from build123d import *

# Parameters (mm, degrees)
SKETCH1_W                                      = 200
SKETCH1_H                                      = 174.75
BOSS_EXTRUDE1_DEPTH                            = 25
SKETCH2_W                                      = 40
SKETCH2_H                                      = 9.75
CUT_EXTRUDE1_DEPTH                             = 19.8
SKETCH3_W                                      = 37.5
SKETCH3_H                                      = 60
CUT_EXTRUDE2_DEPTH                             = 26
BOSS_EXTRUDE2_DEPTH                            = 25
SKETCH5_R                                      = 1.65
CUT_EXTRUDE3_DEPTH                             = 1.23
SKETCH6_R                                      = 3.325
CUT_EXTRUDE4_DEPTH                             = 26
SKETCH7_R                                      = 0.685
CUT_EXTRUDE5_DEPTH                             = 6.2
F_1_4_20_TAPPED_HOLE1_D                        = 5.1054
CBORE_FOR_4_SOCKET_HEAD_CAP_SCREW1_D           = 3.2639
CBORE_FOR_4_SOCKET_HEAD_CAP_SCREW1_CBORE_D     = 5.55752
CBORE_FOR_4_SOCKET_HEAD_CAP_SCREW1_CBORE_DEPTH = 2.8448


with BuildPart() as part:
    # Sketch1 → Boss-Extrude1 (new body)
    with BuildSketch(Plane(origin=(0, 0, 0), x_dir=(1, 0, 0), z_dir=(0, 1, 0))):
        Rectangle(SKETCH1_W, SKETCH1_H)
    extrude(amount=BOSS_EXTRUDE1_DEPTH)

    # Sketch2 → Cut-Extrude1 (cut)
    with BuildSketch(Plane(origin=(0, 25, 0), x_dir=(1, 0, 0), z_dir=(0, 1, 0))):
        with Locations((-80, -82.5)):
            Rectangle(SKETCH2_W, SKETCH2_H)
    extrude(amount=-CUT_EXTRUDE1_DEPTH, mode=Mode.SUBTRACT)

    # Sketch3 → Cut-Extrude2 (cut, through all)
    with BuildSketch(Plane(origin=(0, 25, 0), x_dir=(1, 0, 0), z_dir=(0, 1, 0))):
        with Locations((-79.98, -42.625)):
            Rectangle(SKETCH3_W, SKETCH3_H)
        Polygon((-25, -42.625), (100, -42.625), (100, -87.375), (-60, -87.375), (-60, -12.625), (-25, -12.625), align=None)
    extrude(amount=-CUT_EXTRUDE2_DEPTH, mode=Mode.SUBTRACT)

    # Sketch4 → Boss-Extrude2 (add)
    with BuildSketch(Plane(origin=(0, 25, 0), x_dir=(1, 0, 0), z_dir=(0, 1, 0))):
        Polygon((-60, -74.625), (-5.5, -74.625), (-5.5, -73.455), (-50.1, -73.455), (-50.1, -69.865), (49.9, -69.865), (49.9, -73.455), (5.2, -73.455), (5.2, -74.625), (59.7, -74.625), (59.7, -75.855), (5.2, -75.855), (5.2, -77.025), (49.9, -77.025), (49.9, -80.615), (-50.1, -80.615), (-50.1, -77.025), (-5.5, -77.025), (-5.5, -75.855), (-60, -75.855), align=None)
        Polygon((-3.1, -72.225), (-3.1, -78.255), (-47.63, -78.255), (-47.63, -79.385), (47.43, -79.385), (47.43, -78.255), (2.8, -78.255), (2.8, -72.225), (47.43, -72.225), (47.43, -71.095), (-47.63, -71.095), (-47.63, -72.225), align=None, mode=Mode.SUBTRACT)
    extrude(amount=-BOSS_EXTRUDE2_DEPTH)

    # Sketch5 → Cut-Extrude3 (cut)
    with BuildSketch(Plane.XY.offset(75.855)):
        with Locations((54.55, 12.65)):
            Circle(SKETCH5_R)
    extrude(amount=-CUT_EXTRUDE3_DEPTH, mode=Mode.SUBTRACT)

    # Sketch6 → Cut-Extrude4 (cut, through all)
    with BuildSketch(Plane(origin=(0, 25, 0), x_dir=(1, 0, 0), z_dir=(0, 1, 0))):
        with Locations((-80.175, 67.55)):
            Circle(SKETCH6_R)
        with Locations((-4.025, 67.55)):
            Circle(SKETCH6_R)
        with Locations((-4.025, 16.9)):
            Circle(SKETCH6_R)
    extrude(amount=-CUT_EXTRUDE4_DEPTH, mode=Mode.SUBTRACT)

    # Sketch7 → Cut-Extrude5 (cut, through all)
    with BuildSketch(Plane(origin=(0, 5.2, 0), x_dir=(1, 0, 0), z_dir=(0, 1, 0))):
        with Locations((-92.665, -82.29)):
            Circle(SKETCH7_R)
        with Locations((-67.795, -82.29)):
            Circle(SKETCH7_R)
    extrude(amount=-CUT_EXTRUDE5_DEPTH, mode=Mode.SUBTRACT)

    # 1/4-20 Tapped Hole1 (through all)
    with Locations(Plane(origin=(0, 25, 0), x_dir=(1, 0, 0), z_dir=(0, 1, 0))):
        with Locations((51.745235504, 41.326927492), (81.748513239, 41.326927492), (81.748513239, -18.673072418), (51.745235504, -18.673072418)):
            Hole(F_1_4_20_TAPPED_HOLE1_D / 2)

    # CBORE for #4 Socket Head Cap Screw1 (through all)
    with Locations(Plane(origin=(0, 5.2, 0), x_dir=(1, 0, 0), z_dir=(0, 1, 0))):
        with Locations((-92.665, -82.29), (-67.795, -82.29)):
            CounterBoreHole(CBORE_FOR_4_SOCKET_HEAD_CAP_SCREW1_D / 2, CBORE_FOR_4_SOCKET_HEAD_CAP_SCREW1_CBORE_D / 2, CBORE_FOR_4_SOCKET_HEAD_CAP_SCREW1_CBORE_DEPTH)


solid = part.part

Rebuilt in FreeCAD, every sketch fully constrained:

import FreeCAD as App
import Part
import Sketcher
Q = App.Units.Quantity

doc = App.newDocument("Part")
params = doc.addObject("Spreadsheet::Sheet", "Params")
for row, (alias, value) in enumerate([
    ("sketch1_width", "200 mm"),
    ("sketch1_height", "174.75 mm"),
    ("pad1_length", "25 mm"),
    ("sketch2_width", "40 mm"),
    ("sketch2_height", "9.75 mm"),
    ("pocket1_length", "19.8 mm"),
    ("sketch3_width", "125 mm"),
    ("sketch3_width2", "35 mm"),
    ("sketch3_height", "60 mm"),
    ("sketch3_height2", "30 mm"),
    ("sketch3_width3", "37.5 mm"),
    ("sketch4_width", "100 mm"),
    ("sketch4_width2", "54.5 mm"),
    ("sketch4_width3", "44.6 mm"),
    ("sketch4_width4", "44.7 mm"),
    ("sketch4_width5", "44.53 mm"),
    ("pad2_length", "25 mm"),
    ("sketch5_diameter", "3.3 mm"),
    ("pocket3_length", "1.23 mm"),
    ("sketch6_diameter", "6.65 mm"),
    ("sketch7_diameter", "1.37 mm"),
    ("hole_diameter", "5.1054 mm"),
    ("hole2_diameter", "3.2639 mm"),
    ("hole2_cbore_diameter", "5.55752 mm"),
    ("hole2_cbore_depth", "2.8448 mm"),
], start=1):
    params.set(f"A{row}", alias)
    params.set(f"B{row}", "=" + value)
    params.setAlias(f"B{row}", alias)

body = doc.addObject("PartDesign::Body", "Body")

sketch1 = body.newObject("Sketcher::SketchObject", "Sketch")
sketch1.AttachmentSupport = (doc.getObject("XZ_Plane"), [""])
sketch1.MapMode = "FlatFace"
sketch1.addGeometry([
    Part.LineSegment(App.Vector(-100, -87.375, 0), App.Vector(-100, 87.375, 0)),
    Part.LineSegment(App.Vector(-100, 87.375, 0), App.Vector(100, 87.375, 0)),
    Part.LineSegment(App.Vector(100, 87.375, 0), App.Vector(100, -87.375, 0)),
    Part.LineSegment(App.Vector(100, -87.375, 0), App.Vector(-100, -87.375, 0)),
], False)
sketch1.addConstraint([
    Sketcher.Constraint("Coincident", 0, 2, 1, 1),
    Sketcher.Constraint("Coincident", 1, 2, 2, 1),
    Sketcher.Constraint("Coincident", 2, 2, 3, 1),
    Sketcher.Constraint("Coincident", 3, 2, 0, 1),
    Sketcher.Constraint("Vertical", 0),
    Sketcher.Constraint("Horizontal", 1),
    Sketcher.Constraint("Vertical", 2),
    Sketcher.Constraint("Horizontal", 3),
    Sketcher.Constraint("Symmetric", 0, 2, 2, 2, -1, 1),
    Sketcher.Constraint("DistanceX", 1, 1, 1, 2, Q("200 mm")),
    Sketcher.Constraint("DistanceY", 0, 1, 0, 2, Q("174.75 mm")),
])
sketch1.setExpression("Constraints[9]", "Params.sketch1_width")
sketch1.setExpression("Constraints[10]", "Params.sketch1_height")
pad1 = body.newObject("PartDesign::Pad", "Pad")
pad1.Profile = sketch1
pad1.setExpression("Length", "Params.pad1_length")
pad1.Reversed = True

sketch2 = body.newObject("Sketcher::SketchObject", "Sketch001")
sketch2.AttachmentSupport = (doc.getObject("XZ_Plane"), [""])
sketch2.MapMode = "FlatFace"
sketch2.AttachmentOffset = App.Placement(App.Vector(0, 0, -25), App.Rotation())
sketch2.addGeometry([
    Part.LineSegment(App.Vector(-100, 77.625, 0), App.Vector(-100, 87.375, 0)),
    Part.LineSegment(App.Vector(-100, 87.375, 0), App.Vector(-60, 87.375, 0)),
    Part.LineSegment(App.Vector(-60, 87.375, 0), App.Vector(-60, 77.625, 0)),
    Part.LineSegment(App.Vector(-60, 77.625, 0), App.Vector(-100, 77.625, 0)),
], False)
sketch2.addConstraint([
    Sketcher.Constraint("Coincident", 0, 2, 1, 1),
    Sketcher.Constraint("Coincident", 1, 2, 2, 1),
    Sketcher.Constraint("Coincident", 2, 2, 3, 1),
    Sketcher.Constraint("Coincident", 3, 2, 0, 1),
    Sketcher.Constraint("Vertical", 0),
    Sketcher.Constraint("Horizontal", 1),
    Sketcher.Constraint("Vertical", 2),
    Sketcher.Constraint("Horizontal", 3),
    Sketcher.Constraint("DistanceX", 1, 1, 1, 2, Q("40 mm")),
    Sketcher.Constraint("DistanceX", 0, 2, -1, 1, Q("100 mm")),
    Sketcher.Constraint("DistanceY", 0, 1, 0, 2, Q("9.75 mm")),
    Sketcher.Constraint("DistanceY", -1, 1, 0, 2, Q("87.375 mm")),
])
sketch2.setExpression("Constraints[8]", "Params.sketch2_width")
sketch2.setExpression("Constraints[10]", "Params.sketch2_height")
pocket1 = body.newObject("PartDesign::Pocket", "Pocket")
pocket1.Profile = sketch2
pocket1.setExpression("Length", "Params.pocket1_length")
pocket1.Reversed = True

sketch3 = body.newObject("Sketcher::SketchObject", "Sketch002")
sketch3.AttachmentSupport = (doc.getObject("XZ_Plane"), [""])
sketch3.MapMode = "FlatFace"
sketch3.AttachmentOffset = App.Placement(App.Vector(0, 0, -25), App.Rotation())
sketch3.addGeometry([
    Part.LineSegment(App.Vector(-98.73, 12.625, 0), App.Vector(-98.73, 72.625, 0)),
    Part.LineSegment(App.Vector(-98.73, 72.625, 0), App.Vector(-61.23, 72.625, 0)),
    Part.LineSegment(App.Vector(-61.23, 72.625, 0), App.Vector(-61.23, 12.625, 0)),
    Part.LineSegment(App.Vector(-61.23, 12.625, 0), App.Vector(-98.73, 12.625, 0)),
    Part.LineSegment(App.Vector(100, 42.625, 0), App.Vector(-25, 42.625, 0)),
    Part.LineSegment(App.Vector(-25, 42.625, 0), App.Vector(-25, 12.625, 0)),
    Part.LineSegment(App.Vector(-25, 12.625, 0), App.Vector(-60, 12.625, 0)),
    Part.LineSegment(App.Vector(-60, 12.625, 0), App.Vector(-60, 87.375, 0)),
    Part.LineSegment(App.Vector(-60, 87.375, 0), App.Vector(100, 87.375, 0)),
    Part.LineSegment(App.Vector(100, 87.375, 0), App.Vector(100, 42.625, 0)),
], False)
sketch3.addConstraint([
    Sketcher.Constraint("Coincident", 0, 2, 1, 1),
    Sketcher.Constraint("Coincident", 1, 2, 2, 1),
    Sketcher.Constraint("Coincident", 2, 2, 3, 1),
    Sketcher.Constraint("Coincident", 3, 2, 0, 1),
    Sketcher.Constraint("Coincident", 4, 2, 5, 1),
    Sketcher.Constraint("Coincident", 5, 2, 6, 1),
    Sketcher.Constraint("Coincident", 6, 2, 7, 1),
    Sketcher.Constraint("Coincident", 7, 2, 8, 1),
    Sketcher.Constraint("Coincident", 8, 2, 9, 1),
    Sketcher.Constraint("Coincident", 9, 2, 4, 1),
    Sketcher.Constraint("Vertical", 0),
    Sketcher.Constraint("Horizontal", 1),
    Sketcher.Constraint("Vertical", 2),
    Sketcher.Constraint("Horizontal", 3),
    Sketcher.Constraint("Horizontal", 4),
    Sketcher.Constraint("Vertical", 5),
    Sketcher.Constraint("Horizontal", 6),
    Sketcher.Constraint("Vertical", 7),
    Sketcher.Constraint("Horizontal", 8),
    Sketcher.Constraint("Vertical", 9),
    Sketcher.Constraint("Horizontal", 3, 2, 5, 2),
    Sketcher.Constraint("DistanceX", 4, 2, 4, 1, Q("125 mm")),
    Sketcher.Constraint("DistanceX", 6, 2, 6, 1, Q("35 mm")),
    Sketcher.Constraint("DistanceY", 0, 1, 0, 2, Q("60 mm")),
    Sketcher.Constraint("DistanceY", 5, 2, 5, 1, Q("30 mm")),
    Sketcher.Constraint("DistanceX", 1, 1, 1, 2, Q("37.5 mm")),
    Sketcher.Constraint("DistanceX", 4, 2, -1, 1, Q("25 mm")),
    Sketcher.Constraint("DistanceY", 7, 1, 7, 2, Q("74.75 mm")),
    Sketcher.Constraint("DistanceX", 0, 2, -1, 1, Q("98.73 mm")),
    Sketcher.Constraint("DistanceY", -1, 1, 0, 2, Q("72.625 mm")),
])
sketch3.setExpression("Constraints[21]", "Params.sketch3_width")
sketch3.setExpression("Constraints[22]", "Params.sketch3_width2")
sketch3.setExpression("Constraints[23]", "Params.sketch3_height")
sketch3.setExpression("Constraints[24]", "Params.sketch3_height2")
sketch3.setExpression("Constraints[25]", "Params.sketch3_width3")
pocket2 = body.newObject("PartDesign::Pocket", "Pocket001")
pocket2.Profile = sketch3
pocket2.Type = "ThroughAll"
pocket2.Reversed = True

sketch4 = body.newObject("Sketcher::SketchObject", "Sketch003")
sketch4.AttachmentSupport = (doc.getObject("XZ_Plane"), [""])
sketch4.MapMode = "FlatFace"
sketch4.AttachmentOffset = App.Placement(App.Vector(0, 0, -25), App.Rotation())
sketch4.addGeometry([
    Part.LineSegment(App.Vector(-5.5, 74.625, 0), App.Vector(-60, 74.625, 0)),
    Part.LineSegment(App.Vector(-60, 74.625, 0), App.Vector(-60, 75.855, 0)),
    Part.LineSegment(App.Vector(-60, 75.855, 0), App.Vector(-5.5, 75.855, 0)),
    Part.LineSegment(App.Vector(-5.5, 75.855, 0), App.Vector(-5.5, 77.025, 0)),
    Part.LineSegment(App.Vector(-5.5, 77.025, 0), App.Vector(-50.1, 77.025, 0)),
    Part.LineSegment(App.Vector(-50.1, 77.025, 0), App.Vector(-50.1, 80.615, 0)),
    Part.LineSegment(App.Vector(-50.1, 80.615, 0), App.Vector(49.9, 80.615, 0)),
    Part.LineSegment(App.Vector(49.9, 80.615, 0), App.Vector(49.9, 77.025, 0)),
    Part.LineSegment(App.Vector(49.9, 77.025, 0), App.Vector(5.2, 77.025, 0)),
    Part.LineSegment(App.Vector(5.2, 77.025, 0), App.Vector(5.2, 75.855, 0)),
    Part.LineSegment(App.Vector(5.2, 75.855, 0), App.Vector(59.7, 75.855, 0)),
    Part.LineSegment(App.Vector(59.7, 75.855, 0), App.Vector(59.7, 74.625, 0)),
    Part.LineSegment(App.Vector(59.7, 74.625, 0), App.Vector(5.2, 74.625, 0)),
    Part.LineSegment(App.Vector(5.2, 74.625, 0), App.Vector(5.2, 73.455, 0)),
    Part.LineSegment(App.Vector(5.2, 73.455, 0), App.Vector(49.9, 73.455, 0)),
    Part.LineSegment(App.Vector(49.9, 73.455, 0), App.Vector(49.9, 69.865, 0)),
    Part.LineSegment(App.Vector(49.9, 69.865, 0), App.Vector(-50.1, 69.865, 0)),
    Part.LineSegment(App.Vector(-50.1, 69.865, 0), App.Vector(-50.1, 73.455, 0)),
    Part.LineSegment(App.Vector(-50.1, 73.455, 0), App.Vector(-5.5, 73.455, 0)),
    Part.LineSegment(App.Vector(-5.5, 73.455, 0), App.Vector(-5.5, 74.625, 0)),
    Part.LineSegment(App.Vector(-3.1, 72.225, 0), App.Vector(-47.63, 72.225, 0)),
    Part.LineSegment(App.Vector(-47.63, 72.225, 0), App.Vector(-47.63, 71.095, 0)),
    Part.LineSegment(App.Vector(-47.63, 71.095, 0), App.Vector(47.43, 71.095, 0)),
    Part.LineSegment(App.Vector(47.43, 71.095, 0), App.Vector(47.43, 72.225, 0)),
    Part.LineSegment(App.Vector(47.43, 72.225, 0), App.Vector(2.8, 72.225, 0)),
    Part.LineSegment(App.Vector(2.8, 72.225, 0), App.Vector(2.8, 78.255, 0)),
    Part.LineSegment(App.Vector(2.8, 78.255, 0), App.Vector(47.43, 78.255, 0)),
    Part.LineSegment(App.Vector(47.43, 78.255, 0), App.Vector(47.43, 79.385, 0)),
    Part.LineSegment(App.Vector(47.43, 79.385, 0), App.Vector(-47.63, 79.385, 0)),
    Part.LineSegment(App.Vector(-47.63, 79.385, 0), App.Vector(-47.63, 78.255, 0)),
    Part.LineSegment(App.Vector(-47.63, 78.255, 0), App.Vector(-3.1, 78.255, 0)),
    Part.LineSegment(App.Vector(-3.1, 78.255, 0), App.Vector(-3.1, 72.225, 0)),
], False)
sketch4.addConstraint([
    Sketcher.Constraint("Coincident", 0, 2, 1, 1),
    Sketcher.Constraint("Coincident", 1, 2, 2, 1),
    Sketcher.Constraint("Coincident", 2, 2, 3, 1),
    Sketcher.Constraint("Coincident", 3, 2, 4, 1),
    Sketcher.Constraint("Coincident", 4, 2, 5, 1),
    Sketcher.Constraint("Coincident", 5, 2, 6, 1),
    Sketcher.Constraint("Coincident", 6, 2, 7, 1),
    Sketcher.Constraint("Coincident", 7, 2, 8, 1),
    Sketcher.Constraint("Coincident", 8, 2, 9, 1),
    Sketcher.Constraint("Coincident", 9, 2, 10, 1),
    Sketcher.Constraint("Coincident", 10, 2, 11, 1),
    Sketcher.Constraint("Coincident", 11, 2, 12, 1),
    Sketcher.Constraint("Coincident", 12, 2, 13, 1),
    Sketcher.Constraint("Coincident", 13, 2, 14, 1),
    Sketcher.Constraint("Coincident", 14, 2, 15, 1),
    Sketcher.Constraint("Coincident", 15, 2, 16, 1),
    Sketcher.Constraint("Coincident", 16, 2, 17, 1),
    Sketcher.Constraint("Coincident", 17, 2, 18, 1),
    Sketcher.Constraint("Coincident", 18, 2, 19, 1),
    Sketcher.Constraint("Coincident", 19, 2, 0, 1),
    Sketcher.Constraint("Coincident", 20, 2, 21, 1),
    Sketcher.Constraint("Coincident", 21, 2, 22, 1),
    Sketcher.Constraint("Coincident", 22, 2, 23, 1),
    Sketcher.Constraint("Coincident", 23, 2, 24, 1),
    Sketcher.Constraint("Coincident", 24, 2, 25, 1),
    Sketcher.Constraint("Coincident", 25, 2, 26, 1),
    Sketcher.Constraint("Coincident", 26, 2, 27, 1),
    Sketcher.Constraint("Coincident", 27, 2, 28, 1),
    Sketcher.Constraint("Coincident", 28, 2, 29, 1),
    Sketcher.Constraint("Coincident", 29, 2, 30, 1),
    Sketcher.Constraint("Coincident", 30, 2, 31, 1),
    Sketcher.Constraint("Coincident", 31, 2, 20, 1),
    Sketcher.Constraint("Horizontal", 0),
    Sketcher.Constraint("Vertical", 1),
    Sketcher.Constraint("Horizontal", 2),
    Sketcher.Constraint("Vertical", 3),
    Sketcher.Constraint("Horizontal", 4),
    Sketcher.Constraint("Vertical", 5),
    Sketcher.Constraint("Horizontal", 6),
    Sketcher.Constraint("Vertical", 7),
    Sketcher.Constraint("Horizontal", 8),
    Sketcher.Constraint("Vertical", 9),
    Sketcher.Constraint("Horizontal", 10),
    Sketcher.Constraint("Vertical", 11),
    Sketcher.Constraint("Horizontal", 12),
    Sketcher.Constraint("Vertical", 13),
    Sketcher.Constraint("Horizontal", 14),
    Sketcher.Constraint("Vertical", 15),
    Sketcher.Constraint("Horizontal", 16),
    Sketcher.Constraint("Vertical", 17),
    Sketcher.Constraint("Horizontal", 18),
    Sketcher.Constraint("Vertical", 19),
    Sketcher.Constraint("Horizontal", 20),
    Sketcher.Constraint("Vertical", 21),
    Sketcher.Constraint("Horizontal", 22),
    Sketcher.Constraint("Vertical", 23),
    Sketcher.Constraint("Horizontal", 24),
    Sketcher.Constraint("Vertical", 25),
    Sketcher.Constraint("Horizontal", 26),
    Sketcher.Constraint("Vertical", 27),
    Sketcher.Constraint("Horizontal", 28),
    Sketcher.Constraint("Vertical", 29),
    Sketcher.Constraint("Horizontal", 30),
    Sketcher.Constraint("Vertical", 31),
    Sketcher.Constraint("Horizontal", 4, 2, 7, 2),
    Sketcher.Constraint("Horizontal", 2, 2, 9, 2),
    Sketcher.Constraint("Horizontal", 0, 2, 11, 2),
    Sketcher.Constraint("Horizontal", 14, 2, 17, 2),
    Sketcher.Constraint("Horizontal", 20, 2, 23, 2),
    Sketcher.Constraint("Horizontal", 26, 2, 29, 2),
    Sketcher.Constraint("Vertical", 9, 2, 12, 2),
    Sketcher.Constraint("Vertical", 7, 2, 14, 2),
    Sketcher.Constraint("Vertical", 5, 2, 16, 2),
    Sketcher.Constraint("Vertical", 3, 2, 18, 2),
    Sketcher.Constraint("Vertical", 23, 2, 26, 2),
    Sketcher.Constraint("Vertical", 21, 2, 28, 2),
    Sketcher.Constraint("Equal", 2, 10),
    Sketcher.Constraint("Equal", 9, 13),
    Sketcher.Constraint("Equal", 7, 15),
    Sketcher.Constraint("Equal", 23, 27),
    Sketcher.Constraint("DistanceX", 6, 1, 6, 2, Q("100 mm")),
    Sketcher.Constraint("DistanceX", 0, 2, 0, 1, Q("54.5 mm")),
    Sketcher.Constraint("DistanceX", 4, 2, 4, 1, Q("44.6 mm")),
    Sketcher.Constraint("DistanceX", 8, 2, 8, 1, Q("44.7 mm")),
    Sketcher.Constraint("DistanceX", 0, 2, -1, 1, Q("60 mm")),
    Sketcher.Constraint("DistanceX", 20, 2, 20, 1, Q("44.53 mm")),
    Sketcher.Constraint("DistanceX", 22, 1, 22, 2, Q("95.06 mm")),
    Sketcher.Constraint("DistanceX", 24, 2, 24, 1, Q("44.63 mm")),
    Sketcher.Constraint("DistanceY", 1, 1, 1, 2, Q("1.23 mm")),
    Sketcher.Constraint("DistanceY", 3, 1, 3, 2, Q("1.17 mm")),
    Sketcher.Constraint("DistanceY", 5, 1, 5, 2, Q("3.59 mm")),
    Sketcher.Constraint("DistanceY", 21, 2, 21, 1, Q("1.13 mm")),
    Sketcher.Constraint("DistanceY", 25, 1, 25, 2, Q("6.03 mm")),
    Sketcher.Constraint("DistanceX", -1, 1, 24, 2, Q("2.8 mm")),
    Sketcher.Constraint("DistanceY", 20, 2, 4, 2, Q("4.8 mm")),
    Sketcher.Constraint("DistanceY", -1, 1, 0, 2, Q("74.625 mm")),
])
sketch4.setExpression("Constraints[80]", "Params.sketch4_width")
sketch4.setExpression("Constraints[81]", "Params.sketch4_width2")
sketch4.setExpression("Constraints[82]", "Params.sketch4_width3")
sketch4.setExpression("Constraints[83]", "Params.sketch4_width4")
sketch4.setExpression("Constraints[85]", "Params.sketch4_width5")
pad2 = body.newObject("PartDesign::Pad", "Pad001")
pad2.Profile = sketch4
pad2.setExpression("Length", "Params.pad2_length")

sketch5 = body.newObject("Sketcher::SketchObject", "Sketch004")
sketch5.AttachmentSupport = (doc.getObject("XY_Plane"), [""])
sketch5.MapMode = "FlatFace"
sketch5.AttachmentOffset = App.Placement(App.Vector(0, 0, 75.855), App.Rotation())
sketch5.addGeometry(Part.Circle(App.Vector(54.55, 12.65, 0), App.Vector(0, 0, 1), 1.65), False)
sketch5.addConstraint([
    Sketcher.Constraint("Diameter", 0, Q("3.3 mm")),
    Sketcher.Constraint("DistanceX", -1, 1, 0, 3, Q("54.55 mm")),
    Sketcher.Constraint("DistanceY", -1, 1, 0, 3, Q("12.65 mm")),
])
sketch5.setExpression("Constraints[0]", "Params.sketch5_diameter")
pocket3 = body.newObject("PartDesign::Pocket", "Pocket002")
pocket3.Profile = sketch5
pocket3.setExpression("Length", "Params.pocket3_length")

sketch6 = body.newObject("Sketcher::SketchObject", "Sketch005")
sketch6.AttachmentSupport = (doc.getObject("XZ_Plane"), [""])
sketch6.MapMode = "FlatFace"
sketch6.AttachmentOffset = App.Placement(App.Vector(0, 0, -25), App.Rotation())
sketch6.addGeometry([
    Part.Circle(App.Vector(-80.175, -67.55, 0), App.Vector(0, 0, 1), 3.325),
    Part.Circle(App.Vector(-4.025, -67.55, 0), App.Vector(0, 0, 1), 3.325),
    Part.Circle(App.Vector(-4.025, -16.9, 0), App.Vector(0, 0, 1), 3.325),
], False)
sketch6.addConstraint([
    Sketcher.Constraint("Equal", 0, 1),
    Sketcher.Constraint("Equal", 1, 2),
    Sketcher.Constraint("Horizontal", 0, 3, 1, 3),
    Sketcher.Constraint("Vertical", 1, 3, 2, 3),
    Sketcher.Constraint("Diameter", 0, Q("6.65 mm")),
    Sketcher.Constraint("DistanceY", 2, 3, -1, 1, Q("16.9 mm")),
    Sketcher.Constraint("DistanceY", 0, 3, -1, 1, Q("67.55 mm")),
    Sketcher.Constraint("DistanceX", 0, 3, 1, 3, Q("76.15 mm")),
    Sketcher.Constraint("DistanceX", 0, 3, -1, 1, Q("80.175 mm")),
])
sketch6.setExpression("Constraints[4]", "Params.sketch6_diameter")
pocket4 = body.newObject("PartDesign::Pocket", "Pocket003")
pocket4.Profile = sketch6
pocket4.Type = "ThroughAll"
pocket4.Reversed = True

sketch7 = body.newObject("Sketcher::SketchObject", "Sketch006")
sketch7.AttachmentSupport = (doc.getObject("XZ_Plane"), [""])
sketch7.MapMode = "FlatFace"
sketch7.AttachmentOffset = App.Placement(App.Vector(0, 0, -5.2), App.Rotation())
sketch7.addGeometry([
    Part.Circle(App.Vector(-92.665, 82.29, 0), App.Vector(0, 0, 1), 0.685),
    Part.Circle(App.Vector(-67.795, 82.29, 0), App.Vector(0, 0, 1), 0.685),
], False)
sketch7.addConstraint([
    Sketcher.Constraint("Equal", 0, 1),
    Sketcher.Constraint("Horizontal", 0, 3, 1, 3),
    Sketcher.Constraint("Diameter", 0, Q("1.37 mm")),
    Sketcher.Constraint("DistanceY", -1, 1, 0, 3, Q("82.29 mm")),
    Sketcher.Constraint("DistanceX", 0, 3, 1, 3, Q("24.87 mm")),
    Sketcher.Constraint("DistanceX", 0, 3, -1, 1, Q("92.665 mm")),
])
sketch7.setExpression("Constraints[2]", "Params.sketch7_diameter")
pocket5 = body.newObject("PartDesign::Pocket", "Pocket004")
pocket5.Profile = sketch7
pocket5.Type = "ThroughAll"
pocket5.Reversed = True

sketch8 = body.newObject("Sketcher::SketchObject", "Sketch007")
sketch8.AttachmentSupport = (doc.getObject("XZ_Plane"), [""])
sketch8.MapMode = "FlatFace"
sketch8.AttachmentOffset = App.Placement(App.Vector(0, 0, -25), App.Rotation())
sketch8.addGeometry([
    Part.Circle(App.Vector(51.745236, -41.326927, 0), App.Vector(0, 0, 1), 2.5527),
    Part.Circle(App.Vector(81.748513, -41.326927, 0), App.Vector(0, 0, 1), 2.5527),
    Part.Circle(App.Vector(81.748513, 18.673072, 0), App.Vector(0, 0, 1), 2.5527),
    Part.Circle(App.Vector(51.745236, 18.673072, 0), App.Vector(0, 0, 1), 2.5527),
], False)
sketch8.addConstraint([
    Sketcher.Constraint("Equal", 0, 1),
    Sketcher.Constraint("Equal", 1, 2),
    Sketcher.Constraint("Equal", 2, 3),
    Sketcher.Constraint("Horizontal", 0, 3, 1, 3),
    Sketcher.Constraint("Horizontal", 2, 3, 3, 3),
    Sketcher.Constraint("Vertical", 1, 3, 2, 3),
    Sketcher.Constraint("Vertical", 0, 3, 3, 3),
    Sketcher.Constraint("DistanceY", 1, 3, 2, 3, Q("60 mm")),
    Sketcher.Constraint("Diameter", 0, Q("5.1054 mm")),
    Sketcher.Constraint("DistanceX", -1, 1, 0, 3, Q("51.745236 mm")),
    Sketcher.Constraint("DistanceY", 0, 3, -1, 1, Q("41.326927 mm")),
    Sketcher.Constraint("DistanceX", -1, 1, 1, 3, Q("81.748513 mm")),
])
doc.recompute()
hole = body.newObject("PartDesign::Hole", "Hole")
hole.Profile = sketch8
hole.ThreadType = "None"
hole.setExpression("Diameter", "Params.hole_diameter")
hole.DepthType = "ThroughAll"
hole.Reversed = True

sketch9 = body.newObject("Sketcher::SketchObject", "Sketch008")
sketch9.AttachmentSupport = (doc.getObject("XZ_Plane"), [""])
sketch9.MapMode = "FlatFace"
sketch9.AttachmentOffset = App.Placement(App.Vector(0, 0, -5.2), App.Rotation())
sketch9.addGeometry([
    Part.Circle(App.Vector(-92.665, 82.29, 0), App.Vector(0, 0, 1), 1.63195),
    Part.Circle(App.Vector(-67.795, 82.29, 0), App.Vector(0, 0, 1), 1.63195),
], False)
sketch9.addConstraint([
    Sketcher.Constraint("Equal", 0, 1),
    Sketcher.Constraint("Horizontal", 0, 3, 1, 3),
    Sketcher.Constraint("Diameter", 0, Q("3.2639 mm")),
    Sketcher.Constraint("DistanceY", -1, 1, 0, 3, Q("82.29 mm")),
    Sketcher.Constraint("DistanceX", 0, 3, 1, 3, Q("24.87 mm")),
    Sketcher.Constraint("DistanceX", 0, 3, -1, 1, Q("92.665 mm")),
])
doc.recompute()
hole2 = body.newObject("PartDesign::Hole", "Hole001")
hole2.Profile = sketch9
hole2.ThreadType = "None"
hole2.setExpression("Diameter", "Params.hole2_diameter")
hole2.DepthType = "ThroughAll"
hole2.HoleCutType = "Counterbore"
hole2.setExpression("HoleCutDiameter", "Params.hole2_cbore_diameter")
hole2.setExpression("HoleCutDepth", "Params.hole2_cbore_depth")
hole2.Reversed = True

doc.recompute()
